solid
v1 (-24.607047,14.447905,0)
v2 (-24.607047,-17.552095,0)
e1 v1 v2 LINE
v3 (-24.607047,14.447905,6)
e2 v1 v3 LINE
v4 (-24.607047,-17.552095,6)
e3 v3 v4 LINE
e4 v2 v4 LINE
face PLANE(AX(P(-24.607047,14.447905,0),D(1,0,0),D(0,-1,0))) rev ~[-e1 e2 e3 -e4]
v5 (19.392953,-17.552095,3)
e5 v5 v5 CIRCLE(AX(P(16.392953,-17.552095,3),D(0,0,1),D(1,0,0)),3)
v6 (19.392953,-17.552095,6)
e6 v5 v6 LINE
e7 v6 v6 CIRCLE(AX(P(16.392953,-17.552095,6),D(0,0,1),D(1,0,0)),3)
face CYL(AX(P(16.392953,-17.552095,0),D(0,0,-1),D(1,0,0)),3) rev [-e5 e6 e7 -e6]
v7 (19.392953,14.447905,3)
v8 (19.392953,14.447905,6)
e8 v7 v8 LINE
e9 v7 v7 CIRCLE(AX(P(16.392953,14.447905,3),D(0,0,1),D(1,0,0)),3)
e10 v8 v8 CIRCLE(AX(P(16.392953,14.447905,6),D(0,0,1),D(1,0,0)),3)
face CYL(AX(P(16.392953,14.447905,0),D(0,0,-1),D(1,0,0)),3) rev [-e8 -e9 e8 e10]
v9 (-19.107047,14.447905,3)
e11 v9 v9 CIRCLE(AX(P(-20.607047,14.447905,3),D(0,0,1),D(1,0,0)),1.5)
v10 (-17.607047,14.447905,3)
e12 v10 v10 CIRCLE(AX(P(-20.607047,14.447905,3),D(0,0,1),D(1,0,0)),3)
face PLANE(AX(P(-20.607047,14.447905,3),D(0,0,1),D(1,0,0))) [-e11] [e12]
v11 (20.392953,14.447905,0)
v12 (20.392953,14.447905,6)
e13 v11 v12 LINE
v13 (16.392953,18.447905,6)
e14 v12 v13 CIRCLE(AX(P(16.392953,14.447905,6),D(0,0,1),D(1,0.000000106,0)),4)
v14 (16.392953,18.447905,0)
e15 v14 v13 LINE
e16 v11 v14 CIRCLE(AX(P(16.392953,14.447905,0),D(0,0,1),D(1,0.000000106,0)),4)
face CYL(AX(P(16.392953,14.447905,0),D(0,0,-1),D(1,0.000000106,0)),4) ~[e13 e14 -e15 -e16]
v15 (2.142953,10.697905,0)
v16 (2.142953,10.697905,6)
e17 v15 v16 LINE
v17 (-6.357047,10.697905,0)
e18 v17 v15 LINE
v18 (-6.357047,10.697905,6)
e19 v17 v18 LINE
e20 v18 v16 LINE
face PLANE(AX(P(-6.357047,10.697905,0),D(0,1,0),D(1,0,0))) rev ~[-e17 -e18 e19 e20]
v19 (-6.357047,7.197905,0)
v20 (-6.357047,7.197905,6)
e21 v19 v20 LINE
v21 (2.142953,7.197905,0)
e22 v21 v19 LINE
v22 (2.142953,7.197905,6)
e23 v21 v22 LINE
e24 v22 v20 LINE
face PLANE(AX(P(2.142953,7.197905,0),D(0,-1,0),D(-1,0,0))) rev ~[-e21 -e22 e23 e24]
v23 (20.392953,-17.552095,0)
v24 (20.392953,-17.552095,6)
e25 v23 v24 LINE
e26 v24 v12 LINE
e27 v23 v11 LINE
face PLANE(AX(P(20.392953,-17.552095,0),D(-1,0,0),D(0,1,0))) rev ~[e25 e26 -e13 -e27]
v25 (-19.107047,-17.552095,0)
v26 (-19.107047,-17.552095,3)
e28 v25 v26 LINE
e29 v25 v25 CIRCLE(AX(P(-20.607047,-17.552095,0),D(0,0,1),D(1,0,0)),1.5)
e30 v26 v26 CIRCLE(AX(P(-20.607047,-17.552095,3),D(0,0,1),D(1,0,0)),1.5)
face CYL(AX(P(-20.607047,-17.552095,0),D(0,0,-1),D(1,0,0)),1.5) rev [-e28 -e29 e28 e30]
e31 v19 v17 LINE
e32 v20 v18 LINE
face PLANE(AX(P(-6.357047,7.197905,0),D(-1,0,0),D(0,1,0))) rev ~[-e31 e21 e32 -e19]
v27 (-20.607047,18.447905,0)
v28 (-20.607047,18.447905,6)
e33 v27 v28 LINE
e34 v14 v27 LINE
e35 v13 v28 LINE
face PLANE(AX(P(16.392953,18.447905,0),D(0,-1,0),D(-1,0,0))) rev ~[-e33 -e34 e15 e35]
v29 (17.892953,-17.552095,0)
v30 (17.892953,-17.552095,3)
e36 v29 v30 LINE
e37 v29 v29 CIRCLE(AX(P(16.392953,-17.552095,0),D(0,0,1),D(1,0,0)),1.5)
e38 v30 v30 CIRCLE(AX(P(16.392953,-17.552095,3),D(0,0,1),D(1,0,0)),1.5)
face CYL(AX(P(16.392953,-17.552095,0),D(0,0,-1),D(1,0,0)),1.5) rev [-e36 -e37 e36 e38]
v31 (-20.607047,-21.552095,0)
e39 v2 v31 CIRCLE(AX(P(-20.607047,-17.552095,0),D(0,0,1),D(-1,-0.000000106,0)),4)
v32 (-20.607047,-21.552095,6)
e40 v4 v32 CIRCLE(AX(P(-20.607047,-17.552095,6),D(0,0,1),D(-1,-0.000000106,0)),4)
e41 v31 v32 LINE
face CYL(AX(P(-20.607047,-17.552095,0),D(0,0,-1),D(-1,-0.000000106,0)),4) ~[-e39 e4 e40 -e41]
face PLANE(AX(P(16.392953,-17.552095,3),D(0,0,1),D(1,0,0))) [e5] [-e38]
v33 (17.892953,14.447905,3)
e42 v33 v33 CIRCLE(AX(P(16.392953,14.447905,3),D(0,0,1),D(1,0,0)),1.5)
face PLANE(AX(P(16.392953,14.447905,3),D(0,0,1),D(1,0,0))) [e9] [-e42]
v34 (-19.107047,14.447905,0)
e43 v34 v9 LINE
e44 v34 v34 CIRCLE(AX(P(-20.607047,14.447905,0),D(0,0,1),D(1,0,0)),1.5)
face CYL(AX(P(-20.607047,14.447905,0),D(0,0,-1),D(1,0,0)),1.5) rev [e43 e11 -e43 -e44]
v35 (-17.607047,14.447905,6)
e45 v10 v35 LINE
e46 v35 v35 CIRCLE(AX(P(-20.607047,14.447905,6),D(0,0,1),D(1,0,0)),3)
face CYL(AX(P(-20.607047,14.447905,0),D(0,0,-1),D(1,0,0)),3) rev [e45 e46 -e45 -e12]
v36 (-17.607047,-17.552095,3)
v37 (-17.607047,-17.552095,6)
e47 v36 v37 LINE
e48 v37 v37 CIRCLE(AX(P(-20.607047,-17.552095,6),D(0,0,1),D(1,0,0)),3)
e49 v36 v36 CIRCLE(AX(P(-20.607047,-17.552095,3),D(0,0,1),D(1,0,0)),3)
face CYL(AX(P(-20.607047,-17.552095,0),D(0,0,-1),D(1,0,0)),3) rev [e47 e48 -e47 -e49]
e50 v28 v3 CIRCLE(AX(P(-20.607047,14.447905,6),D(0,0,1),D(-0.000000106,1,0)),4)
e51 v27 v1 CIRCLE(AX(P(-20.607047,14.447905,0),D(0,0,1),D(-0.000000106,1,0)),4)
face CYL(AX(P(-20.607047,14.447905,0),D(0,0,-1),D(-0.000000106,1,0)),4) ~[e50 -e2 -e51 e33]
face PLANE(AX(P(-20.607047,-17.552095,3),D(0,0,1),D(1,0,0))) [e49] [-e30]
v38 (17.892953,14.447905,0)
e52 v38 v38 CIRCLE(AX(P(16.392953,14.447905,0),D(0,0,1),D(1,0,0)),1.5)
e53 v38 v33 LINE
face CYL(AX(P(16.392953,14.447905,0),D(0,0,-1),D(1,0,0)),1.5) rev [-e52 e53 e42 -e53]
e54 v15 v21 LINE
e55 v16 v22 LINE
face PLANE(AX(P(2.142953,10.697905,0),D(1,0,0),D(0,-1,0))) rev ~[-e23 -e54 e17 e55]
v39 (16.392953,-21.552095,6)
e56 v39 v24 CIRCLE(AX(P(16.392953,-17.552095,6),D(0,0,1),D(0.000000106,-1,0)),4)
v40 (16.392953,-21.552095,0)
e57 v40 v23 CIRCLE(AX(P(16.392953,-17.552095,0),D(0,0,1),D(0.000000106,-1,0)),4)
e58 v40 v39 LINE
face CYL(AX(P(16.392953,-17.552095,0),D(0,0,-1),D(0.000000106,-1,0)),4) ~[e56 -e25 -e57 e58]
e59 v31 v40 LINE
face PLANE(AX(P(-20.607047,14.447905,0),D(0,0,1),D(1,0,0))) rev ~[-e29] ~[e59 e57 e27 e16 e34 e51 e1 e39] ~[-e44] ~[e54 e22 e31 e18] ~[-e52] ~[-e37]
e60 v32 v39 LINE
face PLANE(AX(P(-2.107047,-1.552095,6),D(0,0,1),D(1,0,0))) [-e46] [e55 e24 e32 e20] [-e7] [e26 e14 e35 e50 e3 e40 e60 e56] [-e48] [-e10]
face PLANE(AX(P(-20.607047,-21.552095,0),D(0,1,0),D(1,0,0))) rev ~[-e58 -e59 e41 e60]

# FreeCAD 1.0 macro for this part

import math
import FreeCAD as App
import Part
import Sketcher

doc = App.newDocument("Part")
body = doc.addObject("PartDesign::Body", "Body")

# Sketch on XY plane
sketch1 = body.newObject("Sketcher::SketchObject", "Sketch")
sketch1.AttachmentSupport = (doc.getObject("XY_Plane"), [""])
sketch1.MapMode = "FlatFace"
sketch1.addGeometry([
    Part.ArcOfCircle(Part.Circle(App.Vector(-20.6, 14.4, 0), App.Vector(0, 0, 1), 4), math.radians(90), math.radians(180)),  # 0
    Part.LineSegment(App.Vector(-24.6, 14.4, 0), App.Vector(-24.6, -17.6, 0)),  # 1
    Part.ArcOfCircle(Part.Circle(App.Vector(-20.6, -17.6, 0), App.Vector(0, 0, 1), 4), math.radians(-180), math.radians(-90)),  # 2
    Part.LineSegment(App.Vector(-20.6, -21.6, 0), App.Vector(16.4, -21.6, 0)),  # 3
    Part.ArcOfCircle(Part.Circle(App.Vector(16.4, -17.6, 0), App.Vector(0, 0, 1), 4), math.radians(-90), math.radians(0)),  # 4
    Part.LineSegment(App.Vector(20.4, -17.6, 0), App.Vector(20.4, 14.4, 0)),  # 5
    Part.ArcOfCircle(Part.Circle(App.Vector(16.4, 14.4, 0), App.Vector(0, 0, 1), 4), math.radians(0), math.radians(90)),  # 6
    Part.LineSegment(App.Vector(16.4, 18.4, 0), App.Vector(-20.6, 18.4, 0)),  # 7
    Part.Circle(App.Vector(-20.6, -17.6, 0), App.Vector(0, 0, 1), 3),  # 8
    Part.Circle(App.Vector(16.4, -17.6, 0), App.Vector(0, 0, 1), 3),  # 9
    Part.Circle(App.Vector(-20.6, 14.4, 0), App.Vector(0, 0, 1), 3),  # 10
    Part.LineSegment(App.Vector(-6.4, 10.7, 0), App.Vector(2.1, 10.7, 0)),  # 11
    Part.LineSegment(App.Vector(2.1, 10.7, 0), App.Vector(2.1, 7.2, 0)),  # 12
    Part.LineSegment(App.Vector(2.1, 7.2, 0), App.Vector(-6.4, 7.2, 0)),  # 13
    Part.LineSegment(App.Vector(-6.4, 7.2, 0), App.Vector(-6.4, 10.7, 0)),  # 14
    Part.Circle(App.Vector(16.4, 14.4, 0), App.Vector(0, 0, 1), 3),  # 15
], False)
sketch1.addConstraint([
    Sketcher.Constraint("Tangent", 0, 2, 1, 1),
    Sketcher.Constraint("Tangent", 1, 2, 2, 1),
    Sketcher.Constraint("Tangent", 2, 2, 3, 1),
    Sketcher.Constraint("Tangent", 3, 2, 4, 1),
    Sketcher.Constraint("Tangent", 4, 2, 5, 1),
    Sketcher.Constraint("Tangent", 5, 2, 6, 1),
    Sketcher.Constraint("Tangent", 6, 2, 7, 1),
    Sketcher.Constraint("Tangent", 7, 2, 0, 1),
    Sketcher.Constraint("Coincident", 11, 2, 12, 1),
    Sketcher.Constraint("Coincident", 12, 2, 13, 1),
    Sketcher.Constraint("Coincident", 13, 2, 14, 1),
    Sketcher.Constraint("Coincident", 14, 2, 11, 1),
    Sketcher.Constraint("Vertical", 1),
    Sketcher.Constraint("Horizontal", 3),
    Sketcher.Constraint("Vertical", 5),
    Sketcher.Constraint("Horizontal", 7),
    Sketcher.Constraint("Horizontal", 11),
    Sketcher.Constraint("Vertical", 12),
    Sketcher.Constraint("Horizontal", 13),
    Sketcher.Constraint("Vertical", 14),
    Sketcher.Constraint("Coincident", 8, 3, 2, 3),
    Sketcher.Constraint("Coincident", 9, 3, 4, 3),
    Sketcher.Constraint("Coincident", 10, 3, 0, 3),
    Sketcher.Constraint("Coincident", 15, 3, 6, 3),
    Sketcher.Constraint("Equal", 0, 2),
    Sketcher.Constraint("Equal", 2, 4),
    Sketcher.Constraint("Equal", 4, 6),
    Sketcher.Constraint("Equal", 8, 9),
    Sketcher.Constraint("Equal", 9, 10),
    Sketcher.Constraint("Equal", 10, 15),
    Sketcher.Constraint("Diameter", 8, 6.0),
    Sketcher.Constraint("Radius", 0, 4.0),
    Sketcher.Constraint("DistanceX", 3, 1, 3, 2, 37.0),
    Sketcher.Constraint("DistanceY", 1, 2, 1, 1, 32.0),
    Sketcher.Constraint("DistanceX", 11, 1, 11, 2, 8.5),
    Sketcher.Constraint("DistanceY", 12, 2, 12, 1, 3.5),
    Sketcher.Constraint("DistanceX", 11, 2, 6, 3, 14.25),
    Sketcher.Constraint("DistanceY", 11, 2, 6, 3, 3.75),
    Sketcher.Constraint("DistanceX", 0, 3, -1, 1, 20.607047),
    Sketcher.Constraint("DistanceY", -1, 1, 0, 3, 14.447905),
])
pad1 = body.newObject("PartDesign::Pad", "Pad")
pad1.Profile = sketch1
pad1.Length = 6

# Sketch on XY plane
sketch2 = body.newObject("Sketcher::SketchObject", "Sketch001")
sketch2.AttachmentSupport = (doc.getObject("XY_Plane"), [""])
sketch2.MapMode = "FlatFace"
sketch2.addGeometry([
    Part.Circle(App.Vector(-20.6, 14.4, 0), App.Vector(0, 0, 1), 3),  # 0
    Part.Circle(App.Vector(-20.6, 14.4, 0), App.Vector(0, 0, 1), 1.5),  # 1
    Part.Circle(App.Vector(16.4, 14.4, 0), App.Vector(0, 0, 1), 3),  # 2
    Part.Circle(App.Vector(16.4, 14.4, 0), App.Vector(0, 0, 1), 1.5),  # 3
    Part.Circle(App.Vector(16.4, -17.6, 0), App.Vector(0, 0, 1), 3),  # 4
    Part.Circle(App.Vector(16.4, -17.6, 0), App.Vector(0, 0, 1), 1.5),  # 5
    Part.Circle(App.Vector(-20.6, -17.6, 0), App.Vector(0, 0, 1), 3),  # 6
    Part.Circle(App.Vector(-20.6, -17.6, 0), App.Vector(0, 0, 1), 1.5),  # 7
], False)
sketch2.addConstraint([
    Sketcher.Constraint("Coincident", 1, 3, 0, 3),
    Sketcher.Constraint("Coincident", 3, 3, 2, 3),
    Sketcher.Constraint("Coincident", 5, 3, 4, 3),
    Sketcher.Constraint("Coincident", 7, 3, 6, 3),
    Sketcher.Constraint("Equal", 0, 2),
    Sketcher.Constraint("Equal", 1, 3),
    Sketcher.Constraint("Equal", 2, 4),
    Sketcher.Constraint("Equal", 3, 5),
    Sketcher.Constraint("Equal", 4, 6),
    Sketcher.Constraint("Equal", 5, 7),
    Sketcher.Constraint("Horizontal", 1, 3, 2, 3),
    Sketcher.Constraint("Horizontal", 5, 3, 6, 3),
    Sketcher.Constraint("Vertical", 3, 3, 4, 3),
    Sketcher.Constraint("Vertical", 1, 3, 6, 3),
    Sketcher.Constraint("Diameter", 0, 6.0),
    Sketcher.Constraint("Diameter", 1, 3.0),
    Sketcher.Constraint("DistanceX", 0, 3, 2, 3, 37.0),
    Sketcher.Constraint("DistanceY", 4, 3, 2, 3, 32.0),
    Sketcher.Constraint("DistanceX", 0, 3, -1, 1, 20.607047),
    Sketcher.Constraint("DistanceY", -1, 1, 0, 3, 14.447905),
])
pad2 = body.newObject("PartDesign::Pad", "Pad001")
pad2.Profile = sketch2
pad2.Length = 3

doc.recompute()
